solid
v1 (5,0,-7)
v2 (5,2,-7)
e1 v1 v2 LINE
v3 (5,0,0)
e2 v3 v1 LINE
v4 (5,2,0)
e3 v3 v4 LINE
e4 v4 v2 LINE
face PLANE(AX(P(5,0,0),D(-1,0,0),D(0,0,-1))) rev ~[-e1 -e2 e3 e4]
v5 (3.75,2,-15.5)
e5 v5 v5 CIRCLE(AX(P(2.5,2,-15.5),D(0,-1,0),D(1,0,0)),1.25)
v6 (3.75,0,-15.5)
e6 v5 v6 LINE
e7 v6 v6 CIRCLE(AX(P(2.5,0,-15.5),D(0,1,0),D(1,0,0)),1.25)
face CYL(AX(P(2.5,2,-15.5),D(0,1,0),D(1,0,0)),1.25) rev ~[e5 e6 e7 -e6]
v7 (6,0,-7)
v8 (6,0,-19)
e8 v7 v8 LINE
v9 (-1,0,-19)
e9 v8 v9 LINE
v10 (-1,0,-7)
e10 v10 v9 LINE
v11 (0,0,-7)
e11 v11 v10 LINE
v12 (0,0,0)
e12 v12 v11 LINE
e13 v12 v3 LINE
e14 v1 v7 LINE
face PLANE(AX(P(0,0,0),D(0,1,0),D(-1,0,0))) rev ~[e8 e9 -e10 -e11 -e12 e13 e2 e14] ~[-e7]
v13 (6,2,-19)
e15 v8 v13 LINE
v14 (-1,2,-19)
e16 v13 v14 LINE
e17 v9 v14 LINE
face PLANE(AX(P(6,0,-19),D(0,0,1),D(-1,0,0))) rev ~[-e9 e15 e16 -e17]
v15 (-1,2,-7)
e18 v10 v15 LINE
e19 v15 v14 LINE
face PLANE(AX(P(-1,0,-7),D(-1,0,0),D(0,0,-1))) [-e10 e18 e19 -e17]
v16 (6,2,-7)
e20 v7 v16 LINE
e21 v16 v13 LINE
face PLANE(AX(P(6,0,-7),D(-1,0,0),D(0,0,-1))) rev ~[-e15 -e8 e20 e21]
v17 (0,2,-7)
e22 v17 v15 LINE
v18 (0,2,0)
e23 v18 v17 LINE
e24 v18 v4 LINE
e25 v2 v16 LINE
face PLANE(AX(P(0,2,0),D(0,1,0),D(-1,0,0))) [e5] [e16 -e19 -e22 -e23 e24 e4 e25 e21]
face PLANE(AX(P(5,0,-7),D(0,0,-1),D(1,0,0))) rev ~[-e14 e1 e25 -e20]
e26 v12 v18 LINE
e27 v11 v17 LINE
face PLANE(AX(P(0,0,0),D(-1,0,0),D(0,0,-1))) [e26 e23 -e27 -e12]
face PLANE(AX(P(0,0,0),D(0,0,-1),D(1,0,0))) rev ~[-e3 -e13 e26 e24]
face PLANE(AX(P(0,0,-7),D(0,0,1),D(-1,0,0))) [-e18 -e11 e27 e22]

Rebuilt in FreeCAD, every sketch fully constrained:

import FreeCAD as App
import Part
import Sketcher

V = App.Vector

doc = App.newDocument("Part")
body = doc.addObject("PartDesign::Body", "Body")

# Sketch on XZ plane
sketch1 = doc.addObject("Sketcher::SketchObject", "Sketch")
body.addObject(sketch1)
sketch1.AttachmentSupport = (doc.XZ_Plane, [""])
sketch1.MapMode = "FlatFace"
sketch1.addGeometry(Part.LineSegment(V(0, -7, 0), V(0, 0, 0)), False)
sketch1.addGeometry(Part.LineSegment(V(0, 0, 0), V(5, 0, 0)), False)
sketch1.addGeometry(Part.LineSegment(V(5, 0, 0), V(5, -7, 0)), False)
sketch1.addGeometry(Part.LineSegment(V(5, -7, 0), V(6, -7, 0)), False)
sketch1.addGeometry(Part.LineSegment(V(6, -7, 0), V(6, -19, 0)), False)
sketch1.addGeometry(Part.LineSegment(V(6, -19, 0), V(-1, -19, 0)), False)
sketch1.addGeometry(Part.LineSegment(V(-1, -19, 0), V(-1, -7, 0)), False)
sketch1.addGeometry(Part.LineSegment(V(-1, -7, 0), V(0, -7, 0)), False)
sketch1.addConstraint(Sketcher.Constraint("Coincident", 0, 2, 1, 1))
sketch1.addConstraint(Sketcher.Constraint("Coincident", 1, 2, 2, 1))
sketch1.addConstraint(Sketcher.Constraint("Coincident", 2, 2, 3, 1))
sketch1.addConstraint(Sketcher.Constraint("Coincident", 3, 2, 4, 1))
sketch1.addConstraint(Sketcher.Constraint("Coincident", 4, 2, 5, 1))
sketch1.addConstraint(Sketcher.Constraint("Coincident", 5, 2, 6, 1))
sketch1.addConstraint(Sketcher.Constraint("Coincident", 6, 2, 7, 1))
sketch1.addConstraint(Sketcher.Constraint("Coincident", 7, 2, 0, 1))
sketch1.addConstraint(Sketcher.Constraint("Vertical", 0))
sketch1.addConstraint(Sketcher.Constraint("Horizontal", 1))
sketch1.addConstraint(Sketcher.Constraint("Vertical", 2))
sketch1.addConstraint(Sketcher.Constraint("Horizontal", 3))
sketch1.addConstraint(Sketcher.Constraint("Vertical", 4))
sketch1.addConstraint(Sketcher.Constraint("Horizontal", 5))
sketch1.addConstraint(Sketcher.Constraint("Vertical", 6))
sketch1.addConstraint(Sketcher.Constraint("Horizontal", 7))
sketch1.addConstraint(Sketcher.Constraint("Coincident", 0, 2, -1, 1))
sketch1.addConstraint(Sketcher.Constraint("Horizontal", 3, 2, 6, 2))
sketch1.addConstraint(Sketcher.Constraint("Equal", 3, 7))
sketch1.addConstraint(Sketcher.Constraint("Equal", 5, 0))
sketch1.addConstraint(Sketcher.Constraint("DistanceX", 1, 1, 1, 2, 5.0))
sketch1.addConstraint(Sketcher.Constraint("DistanceX", 3, 1, 3, 2, 1.0))
sketch1.addConstraint(Sketcher.Constraint("DistanceY", 4, 2, 4, 1, 12.0))
pad1 = doc.addObject("PartDesign::Pad", "Pad")
body.addObject(pad1)
pad1.Profile = sketch1
pad1.Length = 2
pad1.Reversed = True

# Sketch on XZ plane
sketch2 = doc.addObject("Sketcher::SketchObject", "Sketch001")
body.addObject(sketch2)
sketch2.AttachmentSupport = (doc.XZ_Plane, [""])
sketch2.MapMode = "FlatFace"
sketch2.AttachmentOffset = App.Placement(V(0, 0, -2), App.Rotation())
sketch2.addGeometry(Part.Circle(V(2.5, -15.5, 0), V(0, 0, 1), 1.2), False)
sketch2.addConstraint(Sketcher.Constraint("Diameter", 0, 2.5))
sketch2.addConstraint(Sketcher.Constraint("DistanceX", -1, 1, 0, 3, 2.5))
sketch2.addConstraint(Sketcher.Constraint("DistanceY", 0, 3, -1, 1, 15.5))
pocket1 = doc.addObject("PartDesign::Pocket", "Pocket")
body.addObject(pocket1)
pocket1.Profile = sketch2
pocket1.Length = 2
pocket1.Reversed = True

doc.recompute()
